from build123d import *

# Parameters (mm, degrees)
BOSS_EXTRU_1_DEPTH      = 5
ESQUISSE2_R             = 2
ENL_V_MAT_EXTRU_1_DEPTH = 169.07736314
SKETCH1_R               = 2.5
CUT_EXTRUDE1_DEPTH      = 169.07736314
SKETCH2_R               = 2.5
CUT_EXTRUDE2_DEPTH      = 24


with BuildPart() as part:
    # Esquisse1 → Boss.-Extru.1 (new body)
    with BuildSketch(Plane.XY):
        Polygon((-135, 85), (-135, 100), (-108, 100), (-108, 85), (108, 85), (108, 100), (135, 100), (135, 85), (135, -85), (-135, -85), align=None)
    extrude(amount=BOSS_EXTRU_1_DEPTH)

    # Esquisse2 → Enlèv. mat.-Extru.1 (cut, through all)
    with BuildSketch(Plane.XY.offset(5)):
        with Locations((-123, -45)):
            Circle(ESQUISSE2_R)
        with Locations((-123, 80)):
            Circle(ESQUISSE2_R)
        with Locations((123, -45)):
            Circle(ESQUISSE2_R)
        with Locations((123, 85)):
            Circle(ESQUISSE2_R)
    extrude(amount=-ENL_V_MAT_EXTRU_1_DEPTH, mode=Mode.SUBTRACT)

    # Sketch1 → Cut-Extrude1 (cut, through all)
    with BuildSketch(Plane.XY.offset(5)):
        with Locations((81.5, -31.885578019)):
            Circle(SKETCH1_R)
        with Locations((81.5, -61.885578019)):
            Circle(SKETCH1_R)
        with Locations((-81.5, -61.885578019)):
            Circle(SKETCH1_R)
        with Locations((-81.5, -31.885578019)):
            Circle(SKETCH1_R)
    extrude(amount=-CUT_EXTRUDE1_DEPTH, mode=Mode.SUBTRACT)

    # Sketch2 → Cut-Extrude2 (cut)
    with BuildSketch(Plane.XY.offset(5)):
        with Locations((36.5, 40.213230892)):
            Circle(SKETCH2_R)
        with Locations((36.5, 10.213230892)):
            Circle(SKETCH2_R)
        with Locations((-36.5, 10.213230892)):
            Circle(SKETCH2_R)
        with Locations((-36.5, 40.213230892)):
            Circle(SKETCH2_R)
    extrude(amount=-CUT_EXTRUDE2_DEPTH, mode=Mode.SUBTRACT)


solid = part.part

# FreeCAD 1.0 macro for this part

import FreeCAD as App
import Part
import Sketcher
from FreeCAD import Vector
Q = App.Units.Quantity


def add_polygon(sketch, points):
    """Adds a closed chain of lines whose ends are joined by coincident constraints."""
    first, n = sketch.GeometryCount, len(points)
    for a, b in zip(points, points[1:] + points[:1]):
        sketch.addGeometry(Part.LineSegment(App.Vector(*a, 0), App.Vector(*b, 0)), False)
    for i in range(n):
        sketch.addConstraint(Sketcher.Constraint("Coincident", first + i, 2, first + (i + 1) % n, 1))

doc = App.newDocument("Part")
body = doc.addObject("PartDesign::Body", "Body")

sketch1 = doc.addObject("Sketcher::SketchObject", "Sketch")
body.addObject(sketch1)
sketch1.AttachmentSupport = (doc.XY_Plane, [""])
sketch1.MapMode = "FlatFace"
add_polygon(sketch1, [(-135, 100), (-135, -85), (135, -85), (135, 100), (108, 100), (108, 85), (-108, 85), (-108, 100)])
sketch1.addConstraint(Sketcher.Constraint("Vertical", 0))
sketch1.addConstraint(Sketcher.Constraint("Horizontal", 1))
sketch1.addConstraint(Sketcher.Constraint("Vertical", 2))
sketch1.addConstraint(Sketcher.Constraint("Horizontal", 3))
sketch1.addConstraint(Sketcher.Constraint("Vertical", 4))
sketch1.addConstraint(Sketcher.Constraint("Horizontal", 5))
sketch1.addConstraint(Sketcher.Constraint("Vertical", 6))
sketch1.addConstraint(Sketcher.Constraint("Horizontal", 7))
sketch1.addConstraint(Sketcher.Constraint("Symmetric", 3, 2, 6, 2, -2))
sketch1.addConstraint(Sketcher.Constraint("Equal", 3, 7))
sketch1.addConstraint(Sketcher.Constraint("DistanceX", 1, 1, 1, 2, Q("270 mm")))
sketch1.addConstraint(Sketcher.Constraint("DistanceX", 3, 2, 3, 1, Q("27 mm")))
sketch1.addConstraint(Sketcher.Constraint("DistanceY", 0, 2, 0, 1, Q("185 mm")))
sketch1.addConstraint(Sketcher.Constraint("DistanceY", 4, 2, 4, 1, Q("15 mm")))
sketch1.addConstraint(Sketcher.Constraint("DistanceY", 0, 2, -1, 1, Q("85 mm")))
pad1 = doc.addObject("PartDesign::Pad", "Pad")
body.addObject(pad1)
pad1.Profile = sketch1
pad1.Length = 5

sketch2 = doc.addObject("Sketcher::SketchObject", "Sketch001")
body.addObject(sketch2)
sketch2.AttachmentSupport = (doc.XY_Plane, [""])
sketch2.MapMode = "FlatFace"
sketch2.AttachmentOffset = App.Placement(Vector(0, 0, 5), App.Rotation())
sketch2.addGeometry(Part.Circle(Vector(-123, -45, 0), Vector(0, 0, 1), 2), False)
sketch2.addGeometry(Part.Circle(Vector(-123, 80, 0), Vector(0, 0, 1), 2), False)
sketch2.addGeometry(Part.Circle(Vector(123, -45, 0), Vector(0, 0, 1), 2), False)
sketch2.addGeometry(Part.Circle(Vector(123, 85, 0), Vector(0, 0, 1), 2), False)
sketch2.addConstraint(Sketcher.Constraint("Equal", 0, 1))
sketch2.addConstraint(Sketcher.Constraint("Equal", 1, 2))
sketch2.addConstraint(Sketcher.Constraint("Equal", 2, 3))
sketch2.addConstraint(Sketcher.Constraint("Symmetric", 0, 3, 2, 3, -2))
sketch2.addConstraint(Sketcher.Constraint("Vertical", 0, 3, 1, 3))
sketch2.addConstraint(Sketcher.Constraint("Vertical", 2, 3, 3, 3))
sketch2.addConstraint(Sketcher.Constraint("Diameter", 0, Q("4 mm")))
sketch2.addConstraint(Sketcher.Constraint("DistanceX", 0, 3, -1, 1, Q("123 mm")))
sketch2.addConstraint(Sketcher.Constraint("DistanceY", 0, 3, -1, 1, Q("45 mm")))
sketch2.addConstraint(Sketcher.Constraint("DistanceY", -1, 1, 1, 3, Q("80 mm")))
sketch2.addConstraint(Sketcher.Constraint("DistanceY", -1, 1, 3, 3, Q("85 mm")))
pocket1 = doc.addObject("PartDesign::Pocket", "Pocket")
body.addObject(pocket1)
pocket1.Profile = sketch2
pocket1.Type = "ThroughAll"

sketch3 = doc.addObject("Sketcher::SketchObject", "Sketch002")
body.addObject(sketch3)
sketch3.AttachmentSupport = (doc.XY_Plane, [""])
sketch3.MapMode = "FlatFace"
sketch3.AttachmentOffset = App.Placement(Vector(0, 0, 5), App.Rotation())
sketch3.addGeometry(Part.Circle(Vector(81.5, -31.9, 0), Vector(0, 0, 1), 2.5), False)
sketch3.addGeometry(Part.Circle(Vector(81.5, -61.9, 0), Vector(0, 0, 1), 2.5), False)
sketch3.addGeometry(Part.Circle(Vector(-81.5, -61.9, 0), Vector(0, 0, 1), 2.5), False)
sketch3.addGeometry(Part.Circle(Vector(-81.5, -31.9, 0), Vector(0, 0, 1), 2.5), False)
sketch3.addConstraint(Sketcher.Constraint("Equal", 0, 1))
sketch3.addConstraint(Sketcher.Constraint("Equal", 1, 2))
sketch3.addConstraint(Sketcher.Constraint("Equal", 2, 3))
sketch3.addConstraint(Sketcher.Constraint("Symmetric", 1, 3, 2, 3, -2))
sketch3.addConstraint(Sketcher.Constraint("Symmetric", 0, 3, 3, 3, -2))
sketch3.addConstraint(Sketcher.Constraint("Vertical", 0, 3, 1, 3))
sketch3.addConstraint(Sketcher.Constraint("Diameter", 0, Q("5 mm")))
sketch3.addConstraint(Sketcher.Constraint("DistanceY", 1, 3, 0, 3, Q("30 mm")))
sketch3.addConstraint(Sketcher.Constraint("DistanceX", 2, 3, 1, 3, Q("163 mm")))
sketch3.addConstraint(Sketcher.Constraint("DistanceY", 0, 3, -1, 1, Q("31.885578 mm")))
pocket2 = doc.addObject("PartDesign::Pocket", "Pocket001")
body.addObject(pocket2)
pocket2.Profile = sketch3
pocket2.Type = "ThroughAll"

sketch4 = doc.addObject("Sketcher::SketchObject", "Sketch003")
body.addObject(sketch4)
sketch4.AttachmentSupport = (doc.XY_Plane, [""])
sketch4.MapMode = "FlatFace"
sketch4.AttachmentOffset = App.Placement(Vector(0, 0, 5), App.Rotation())
sketch4.addGeometry(Part.Circle(Vector(36.5, 40.2, 0), Vector(0, 0, 1), 2.5), False)
sketch4.addGeometry(Part.Circle(Vector(36.5, 10.2, 0), Vector(0, 0, 1), 2.5), False)
sketch4.addGeometry(Part.Circle(Vector(-36.5, 10.2, 0), Vector(0, 0, 1), 2.5), False)
sketch4.addGeometry(Part.Circle(Vector(-36.5, 40.2, 0), Vector(0, 0, 1), 2.5), False)
sketch4.addConstraint(Sketcher.Constraint("Equal", 0, 1))
sketch4.addConstraint(Sketcher.Constraint("Equal", 1, 2))
sketch4.addConstraint(Sketcher.Constraint("Equal", 2, 3))
sketch4.addConstraint(Sketcher.Constraint("Symmetric", 1, 3, 2, 3, -2))
sketch4.addConstraint(Sketcher.Constraint("Symmetric", 0, 3, 3, 3, -2))
sketch4.addConstraint(Sketcher.Constraint("Vertical", 0, 3, 1, 3))
sketch4.addConstraint(Sketcher.Constraint("Diameter", 0, Q("5 mm")))
sketch4.addConstraint(Sketcher.Constraint("DistanceY", 1, 3, 0, 3, Q("30 mm")))
sketch4.addConstraint(Sketcher.Constraint("DistanceX", 2, 3, 1, 3, Q("73 mm")))
sketch4.addConstraint(Sketcher.Constraint("DistanceY", -1, 1, 0, 3, Q("40.213231 mm")))
pocket3 = doc.addObject("PartDesign::Pocket", "Pocket002")
body.addObject(pocket3)
pocket3.Profile = sketch4
pocket3.Length = 24

doc.recompute()
